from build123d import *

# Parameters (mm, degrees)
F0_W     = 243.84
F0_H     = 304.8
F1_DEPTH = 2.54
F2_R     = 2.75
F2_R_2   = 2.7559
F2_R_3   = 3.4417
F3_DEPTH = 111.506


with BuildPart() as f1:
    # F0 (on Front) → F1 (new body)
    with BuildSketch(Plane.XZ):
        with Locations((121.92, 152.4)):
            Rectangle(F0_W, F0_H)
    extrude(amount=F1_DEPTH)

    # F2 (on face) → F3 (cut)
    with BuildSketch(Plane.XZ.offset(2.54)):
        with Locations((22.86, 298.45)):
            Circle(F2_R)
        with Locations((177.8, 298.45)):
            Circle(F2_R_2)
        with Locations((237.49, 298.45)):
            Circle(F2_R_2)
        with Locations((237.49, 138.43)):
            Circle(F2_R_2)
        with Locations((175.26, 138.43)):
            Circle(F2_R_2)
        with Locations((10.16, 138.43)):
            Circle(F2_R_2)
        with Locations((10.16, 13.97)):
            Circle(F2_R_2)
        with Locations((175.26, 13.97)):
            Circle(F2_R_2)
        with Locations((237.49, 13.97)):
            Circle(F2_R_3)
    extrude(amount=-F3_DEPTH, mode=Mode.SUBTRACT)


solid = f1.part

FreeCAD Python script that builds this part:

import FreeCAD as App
import Part
import Sketcher
from FreeCAD import Vector
Q = App.Units.Quantity

doc = App.newDocument("Part")
body = doc.addObject("PartDesign::Body", "Body")

sketch1 = doc.addObject("Sketcher::SketchObject", "Sketch")
body.addObject(sketch1)
sketch1.AttachmentSupport = (doc.XZ_Plane, [""])
sketch1.MapMode = "FlatFace"
sketch1.addGeometry(Part.LineSegment(Vector(0, 304.8, 0), Vector(0, 0, 0)), False)
sketch1.addGeometry(Part.LineSegment(Vector(0, 0, 0), Vector(243.84, 0, 0)), False)
sketch1.addGeometry(Part.LineSegment(Vector(243.84, 0, 0), Vector(243.84, 304.8, 0)), False)
sketch1.addGeometry(Part.LineSegment(Vector(243.84, 304.8, 0), Vector(0, 304.8, 0)), False)
sketch1.addConstraint(Sketcher.Constraint("Coincident", 0, 2, 1, 1))
sketch1.addConstraint(Sketcher.Constraint("Coincident", 1, 2, 2, 1))
sketch1.addConstraint(Sketcher.Constraint("Coincident", 2, 2, 3, 1))
sketch1.addConstraint(Sketcher.Constraint("Coincident", 3, 2, 0, 1))
sketch1.addConstraint(Sketcher.Constraint("Vertical", 0))
sketch1.addConstraint(Sketcher.Constraint("Horizontal", 1))
sketch1.addConstraint(Sketcher.Constraint("Vertical", 2))
sketch1.addConstraint(Sketcher.Constraint("Horizontal", 3))
sketch1.addConstraint(Sketcher.Constraint("Coincident", 0, 2, -1, 1))
sketch1.addConstraint(Sketcher.Constraint("DistanceY", 0, 2, 0, 1, Q("12 in")))
sketch1.addConstraint(Sketcher.Constraint("DistanceX", 1, 1, 1, 2, Q("9.6 in")))
pad1 = doc.addObject("PartDesign::Pad", "Pad")
body.addObject(pad1)
pad1.Profile = sketch1
pad1.Length = Q("0.1 in")

sketch2 = doc.addObject("Sketcher::SketchObject", "Sketch001")
body.addObject(sketch2)
sketch2.AttachmentSupport = (doc.XZ_Plane, [""])
sketch2.MapMode = "FlatFace"
sketch2.AttachmentOffset = App.Placement(Vector(0, 0, 0.1 * 25.4), App.Rotation())
sketch2.addGeometry(Part.Circle(Vector(22.86, 298.45, 0), Vector(0, 0, 1), 2.75), False)
sketch2.addGeometry(Part.Circle(Vector(177.8, 298.45, 0), Vector(0, 0, 1), 2.7559), False)
sketch2.addGeometry(Part.Circle(Vector(237.49, 298.45, 0), Vector(0, 0, 1), 2.7559), False)
sketch2.addGeometry(Part.Circle(Vector(237.49, 138.43, 0), Vector(0, 0, 1), 2.7559), False)
sketch2.addGeometry(Part.Circle(Vector(175.26, 138.43, 0), Vector(0, 0, 1), 2.7559), False)
sketch2.addGeometry(Part.Circle(Vector(10.16, 138.43, 0), Vector(0, 0, 1), 2.7559), False)
sketch2.addGeometry(Part.Circle(Vector(10.16, 13.97, 0), Vector(0, 0, 1), 2.7559), False)
sketch2.addGeometry(Part.Circle(Vector(175.26, 13.97, 0), Vector(0, 0, 1), 2.7559), False)
sketch2.addGeometry(Part.Circle(Vector(237.49, 13.97, 0), Vector(0, 0, 1), 3.4417), False)
sketch2.addConstraint(Sketcher.Constraint("Equal", 1, 2))
sketch2.addConstraint(Sketcher.Constraint("Equal", 2, 3))
sketch2.addConstraint(Sketcher.Constraint("Equal", 3, 4))
sketch2.addConstraint(Sketcher.Constraint("Equal", 4, 5))
sketch2.addConstraint(Sketcher.Constraint("Equal", 5, 6))
sketch2.addConstraint(Sketcher.Constraint("Equal", 6, 7))
sketch2.addConstraint(Sketcher.Constraint("Horizontal", 0, 3, 1, 3))
sketch2.addConstraint(Sketcher.Constraint("Horizontal", 1, 3, 2, 3))
sketch2.addConstraint(Sketcher.Constraint("Horizontal", 3, 3, 4, 3))
sketch2.addConstraint(Sketcher.Constraint("Horizontal", 4, 3, 5, 3))
sketch2.addConstraint(Sketcher.Constraint("Horizontal", 6, 3, 7, 3))
sketch2.addConstraint(Sketcher.Constraint("Horizontal", 7, 3, 8, 3))
sketch2.addConstraint(Sketcher.Constraint("Vertical", 2, 3, 3, 3))
sketch2.addConstraint(Sketcher.Constraint("Vertical", 5, 3, 6, 3))
sketch2.addConstraint(Sketcher.Constraint("Vertical", 4, 3, 7, 3))
sketch2.addConstraint(Sketcher.Constraint("Vertical", 3, 3, 8, 3))
sketch2.addConstraint(Sketcher.Constraint("Diameter", 1, Q("0.217 in")))
sketch2.addConstraint(Sketcher.Constraint("Diameter", 8, Q("0.271 in")))
sketch2.addConstraint(Sketcher.Constraint("DistanceX", -1, 1, 1, 3, Q("7 in")))
sketch2.addConstraint(Sketcher.Constraint("DistanceX", 0, 3, 4, 3, Q("6 in")))
sketch2.addConstraint(Sketcher.Constraint("DistanceX", -1, 1, 0, 3, Q("0.9 in")))
sketch2.addConstraint(Sketcher.Constraint("DistanceX", -1, 1, 5, 3, Q("0.4 in")))
sketch2.addConstraint(Sketcher.Constraint("DistanceY", 3, 3, 2, 3, Q("6.3 in")))
sketch2.addConstraint(Sketcher.Constraint("DistanceY", 6, 3, 5, 3, Q("4.9 in")))
sketch2.addConstraint(Sketcher.Constraint("Diameter", 0, 5.5))
sketch2.addConstraint(Sketcher.Constraint("DistanceY", -1, 1, 0, 3, Q("11.75 in")))
sketch2.addConstraint(Sketcher.Constraint("DistanceX", -1, 1, 2, 3, Q("9.35 in")))
pocket1 = doc.addObject("PartDesign::Pocket", "Pocket")
body.addObject(pocket1)
pocket1.Profile = sketch2
pocket1.Length = Q("4.39 in")

doc.recompute()
